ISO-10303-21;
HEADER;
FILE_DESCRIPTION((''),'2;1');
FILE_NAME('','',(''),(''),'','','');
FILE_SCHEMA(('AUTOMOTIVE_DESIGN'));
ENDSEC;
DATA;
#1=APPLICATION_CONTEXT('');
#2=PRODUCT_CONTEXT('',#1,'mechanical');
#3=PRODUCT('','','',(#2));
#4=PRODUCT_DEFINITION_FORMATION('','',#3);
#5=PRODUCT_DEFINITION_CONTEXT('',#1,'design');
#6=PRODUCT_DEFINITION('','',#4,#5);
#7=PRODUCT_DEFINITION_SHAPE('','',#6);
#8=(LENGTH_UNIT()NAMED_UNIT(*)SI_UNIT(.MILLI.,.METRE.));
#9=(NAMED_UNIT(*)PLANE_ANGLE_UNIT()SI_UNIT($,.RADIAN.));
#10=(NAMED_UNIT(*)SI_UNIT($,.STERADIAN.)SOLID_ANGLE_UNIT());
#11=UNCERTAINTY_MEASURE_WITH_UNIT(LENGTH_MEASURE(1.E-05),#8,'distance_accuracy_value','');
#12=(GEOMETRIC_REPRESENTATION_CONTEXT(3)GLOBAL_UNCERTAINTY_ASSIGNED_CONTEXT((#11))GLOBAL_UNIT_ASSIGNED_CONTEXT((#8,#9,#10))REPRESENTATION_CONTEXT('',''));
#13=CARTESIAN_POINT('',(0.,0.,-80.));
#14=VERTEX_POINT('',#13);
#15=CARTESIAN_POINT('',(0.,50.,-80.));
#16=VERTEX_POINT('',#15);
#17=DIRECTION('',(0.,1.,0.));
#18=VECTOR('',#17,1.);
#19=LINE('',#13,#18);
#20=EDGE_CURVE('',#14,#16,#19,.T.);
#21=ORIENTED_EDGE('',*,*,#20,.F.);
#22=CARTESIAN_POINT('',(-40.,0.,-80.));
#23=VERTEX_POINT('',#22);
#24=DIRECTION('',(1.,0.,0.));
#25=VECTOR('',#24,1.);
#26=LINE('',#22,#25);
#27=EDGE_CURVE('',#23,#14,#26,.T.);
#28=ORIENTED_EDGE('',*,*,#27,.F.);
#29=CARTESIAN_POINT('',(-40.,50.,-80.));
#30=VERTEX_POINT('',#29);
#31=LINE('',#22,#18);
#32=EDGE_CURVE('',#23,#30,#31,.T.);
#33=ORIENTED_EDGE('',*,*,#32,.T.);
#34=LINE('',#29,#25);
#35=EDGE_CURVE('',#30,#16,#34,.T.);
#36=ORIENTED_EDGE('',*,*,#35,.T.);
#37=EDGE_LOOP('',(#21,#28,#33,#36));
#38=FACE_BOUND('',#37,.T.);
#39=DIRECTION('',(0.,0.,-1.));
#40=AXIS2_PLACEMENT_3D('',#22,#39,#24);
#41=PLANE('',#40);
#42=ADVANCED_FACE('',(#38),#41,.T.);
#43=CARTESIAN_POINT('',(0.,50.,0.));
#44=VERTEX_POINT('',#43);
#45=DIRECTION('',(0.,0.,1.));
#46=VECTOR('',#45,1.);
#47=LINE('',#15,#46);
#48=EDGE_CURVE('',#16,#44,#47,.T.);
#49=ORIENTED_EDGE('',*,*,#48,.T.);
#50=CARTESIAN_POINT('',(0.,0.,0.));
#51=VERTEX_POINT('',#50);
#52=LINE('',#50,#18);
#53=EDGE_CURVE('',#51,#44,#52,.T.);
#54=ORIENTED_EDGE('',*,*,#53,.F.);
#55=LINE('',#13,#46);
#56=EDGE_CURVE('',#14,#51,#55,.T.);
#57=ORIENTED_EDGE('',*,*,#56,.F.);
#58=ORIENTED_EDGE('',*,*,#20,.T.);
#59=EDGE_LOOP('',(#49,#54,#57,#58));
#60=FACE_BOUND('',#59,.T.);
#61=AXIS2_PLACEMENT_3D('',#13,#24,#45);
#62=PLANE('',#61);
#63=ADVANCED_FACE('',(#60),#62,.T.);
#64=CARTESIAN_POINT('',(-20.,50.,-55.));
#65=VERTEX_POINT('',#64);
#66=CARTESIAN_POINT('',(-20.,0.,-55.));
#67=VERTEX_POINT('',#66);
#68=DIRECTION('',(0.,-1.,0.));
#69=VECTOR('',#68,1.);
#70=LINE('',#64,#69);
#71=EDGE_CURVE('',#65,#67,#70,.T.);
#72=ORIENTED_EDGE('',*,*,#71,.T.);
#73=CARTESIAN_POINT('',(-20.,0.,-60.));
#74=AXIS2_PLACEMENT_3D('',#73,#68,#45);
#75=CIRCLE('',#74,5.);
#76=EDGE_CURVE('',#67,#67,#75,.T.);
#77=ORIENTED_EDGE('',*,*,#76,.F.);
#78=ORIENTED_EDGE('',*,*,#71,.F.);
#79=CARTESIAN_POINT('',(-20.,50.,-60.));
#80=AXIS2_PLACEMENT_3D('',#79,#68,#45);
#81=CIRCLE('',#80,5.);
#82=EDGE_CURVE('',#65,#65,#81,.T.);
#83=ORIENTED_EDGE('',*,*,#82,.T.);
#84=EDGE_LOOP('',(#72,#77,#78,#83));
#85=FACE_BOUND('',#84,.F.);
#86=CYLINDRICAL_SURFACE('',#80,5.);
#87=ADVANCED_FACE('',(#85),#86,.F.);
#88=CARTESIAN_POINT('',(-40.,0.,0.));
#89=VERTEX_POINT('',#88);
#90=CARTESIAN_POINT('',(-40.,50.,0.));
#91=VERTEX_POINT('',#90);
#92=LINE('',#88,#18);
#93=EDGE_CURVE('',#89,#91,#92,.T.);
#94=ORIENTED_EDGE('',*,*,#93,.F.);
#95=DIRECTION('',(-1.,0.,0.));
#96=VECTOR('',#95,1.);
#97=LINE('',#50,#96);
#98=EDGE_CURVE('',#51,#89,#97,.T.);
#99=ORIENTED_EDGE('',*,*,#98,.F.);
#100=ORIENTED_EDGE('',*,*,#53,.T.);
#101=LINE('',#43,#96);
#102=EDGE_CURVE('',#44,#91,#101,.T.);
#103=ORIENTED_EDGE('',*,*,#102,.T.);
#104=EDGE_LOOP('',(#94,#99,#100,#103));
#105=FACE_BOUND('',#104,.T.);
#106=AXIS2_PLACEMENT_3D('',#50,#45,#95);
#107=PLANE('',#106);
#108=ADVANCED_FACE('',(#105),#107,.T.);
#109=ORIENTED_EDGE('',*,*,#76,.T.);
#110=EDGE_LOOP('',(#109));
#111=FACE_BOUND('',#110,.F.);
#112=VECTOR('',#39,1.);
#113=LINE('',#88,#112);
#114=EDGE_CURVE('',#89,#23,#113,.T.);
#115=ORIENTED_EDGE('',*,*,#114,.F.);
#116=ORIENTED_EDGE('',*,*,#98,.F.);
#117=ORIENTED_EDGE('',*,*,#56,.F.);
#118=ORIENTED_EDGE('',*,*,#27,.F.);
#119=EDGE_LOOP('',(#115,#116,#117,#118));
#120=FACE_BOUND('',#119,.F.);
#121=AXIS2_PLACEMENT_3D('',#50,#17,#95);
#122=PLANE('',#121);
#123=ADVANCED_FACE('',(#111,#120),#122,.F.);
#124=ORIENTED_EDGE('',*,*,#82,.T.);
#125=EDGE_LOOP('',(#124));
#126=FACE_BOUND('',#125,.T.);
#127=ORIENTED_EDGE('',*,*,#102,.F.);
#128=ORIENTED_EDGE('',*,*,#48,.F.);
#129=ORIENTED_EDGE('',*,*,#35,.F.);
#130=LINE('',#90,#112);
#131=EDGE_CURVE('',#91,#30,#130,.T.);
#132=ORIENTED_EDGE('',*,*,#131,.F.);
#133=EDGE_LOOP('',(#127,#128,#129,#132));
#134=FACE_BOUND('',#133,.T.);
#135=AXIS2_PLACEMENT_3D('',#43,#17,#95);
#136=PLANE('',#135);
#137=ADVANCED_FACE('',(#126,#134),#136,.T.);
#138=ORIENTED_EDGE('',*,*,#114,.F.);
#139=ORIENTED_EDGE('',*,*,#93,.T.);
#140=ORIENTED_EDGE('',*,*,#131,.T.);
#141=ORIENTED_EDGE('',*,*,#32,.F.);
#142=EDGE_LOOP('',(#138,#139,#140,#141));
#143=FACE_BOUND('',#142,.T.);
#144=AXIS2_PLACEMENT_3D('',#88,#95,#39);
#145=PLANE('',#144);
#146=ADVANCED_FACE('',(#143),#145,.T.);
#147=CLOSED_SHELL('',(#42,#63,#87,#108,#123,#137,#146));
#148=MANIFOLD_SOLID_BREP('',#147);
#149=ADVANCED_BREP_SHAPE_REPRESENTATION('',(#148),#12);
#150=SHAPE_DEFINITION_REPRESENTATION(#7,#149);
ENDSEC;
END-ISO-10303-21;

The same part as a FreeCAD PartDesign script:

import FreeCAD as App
import Part
import Sketcher


def add_polygon(sketch, points):
    """Adds a closed chain of lines whose ends are joined by coincident constraints."""
    first, n = sketch.GeometryCount, len(points)
    for a, b in zip(points, points[1:] + points[:1]):
        sketch.addGeometry(Part.LineSegment(App.Vector(*a, 0), App.Vector(*b, 0)), False)
    for i in range(n):
        sketch.addConstraint(Sketcher.Constraint("Coincident", first + i, 2, first + (i + 1) % n, 1))

doc = App.newDocument("Part")
body = doc.addObject("PartDesign::Body", "Body")

# Sketch on XZ plane
sketch1 = body.newObject("Sketcher::SketchObject", "Sketch")
sketch1.AttachmentSupport = (doc.getObject("XZ_Plane"), [""])
sketch1.MapMode = "FlatFace"
add_polygon(sketch1, [(-40, 0), (0, 0), (0, -80), (-40, -80)])  # lines 0-3
sketch1.addConstraint(Sketcher.Constraint("Horizontal", 0))
sketch1.addConstraint(Sketcher.Constraint("Vertical", 1))
sketch1.addConstraint(Sketcher.Constraint("Horizontal", 2))
sketch1.addConstraint(Sketcher.Constraint("Vertical", 3))
sketch1.addConstraint(Sketcher.Constraint("Coincident", 0, 2, -1, 1))
sketch1.addConstraint(Sketcher.Constraint("DistanceX", 0, 1, 0, 2, 40.0))
sketch1.addConstraint(Sketcher.Constraint("DistanceY", 1, 2, 1, 1, 80.0))
pad1 = body.newObject("PartDesign::Pad", "Pad")
pad1.Profile = sketch1
pad1.Length = 50
pad1.Reversed = True

# Sketch on XZ plane
sketch2 = body.newObject("Sketcher::SketchObject", "Sketch001")
sketch2.AttachmentSupport = (doc.getObject("XZ_Plane"), [""])
sketch2.MapMode = "FlatFace"
sketch2.AttachmentOffset = App.Placement(App.Vector(0, 0, -50), App.Rotation())
sketch2.addGeometry(Part.Circle(App.Vector(-20, -60, 0), App.Vector(0, 0, 1), 5), False)
sketch2.addConstraint(Sketcher.Constraint("Diameter", 0, 10.0))
sketch2.addConstraint(Sketcher.Constraint("DistanceX", 0, 3, -1, 1, 20.0))
sketch2.addConstraint(Sketcher.Constraint("DistanceY", 0, 3, -1, 1, 60.0))
doc.recompute()
hole = body.newObject("PartDesign::Hole", "Hole")
hole.Profile = sketch2
hole.ThreadType = "None"
hole.Diameter = 10
hole.DepthType = "ThroughAll"
hole.Reversed = True

doc.recompute()
